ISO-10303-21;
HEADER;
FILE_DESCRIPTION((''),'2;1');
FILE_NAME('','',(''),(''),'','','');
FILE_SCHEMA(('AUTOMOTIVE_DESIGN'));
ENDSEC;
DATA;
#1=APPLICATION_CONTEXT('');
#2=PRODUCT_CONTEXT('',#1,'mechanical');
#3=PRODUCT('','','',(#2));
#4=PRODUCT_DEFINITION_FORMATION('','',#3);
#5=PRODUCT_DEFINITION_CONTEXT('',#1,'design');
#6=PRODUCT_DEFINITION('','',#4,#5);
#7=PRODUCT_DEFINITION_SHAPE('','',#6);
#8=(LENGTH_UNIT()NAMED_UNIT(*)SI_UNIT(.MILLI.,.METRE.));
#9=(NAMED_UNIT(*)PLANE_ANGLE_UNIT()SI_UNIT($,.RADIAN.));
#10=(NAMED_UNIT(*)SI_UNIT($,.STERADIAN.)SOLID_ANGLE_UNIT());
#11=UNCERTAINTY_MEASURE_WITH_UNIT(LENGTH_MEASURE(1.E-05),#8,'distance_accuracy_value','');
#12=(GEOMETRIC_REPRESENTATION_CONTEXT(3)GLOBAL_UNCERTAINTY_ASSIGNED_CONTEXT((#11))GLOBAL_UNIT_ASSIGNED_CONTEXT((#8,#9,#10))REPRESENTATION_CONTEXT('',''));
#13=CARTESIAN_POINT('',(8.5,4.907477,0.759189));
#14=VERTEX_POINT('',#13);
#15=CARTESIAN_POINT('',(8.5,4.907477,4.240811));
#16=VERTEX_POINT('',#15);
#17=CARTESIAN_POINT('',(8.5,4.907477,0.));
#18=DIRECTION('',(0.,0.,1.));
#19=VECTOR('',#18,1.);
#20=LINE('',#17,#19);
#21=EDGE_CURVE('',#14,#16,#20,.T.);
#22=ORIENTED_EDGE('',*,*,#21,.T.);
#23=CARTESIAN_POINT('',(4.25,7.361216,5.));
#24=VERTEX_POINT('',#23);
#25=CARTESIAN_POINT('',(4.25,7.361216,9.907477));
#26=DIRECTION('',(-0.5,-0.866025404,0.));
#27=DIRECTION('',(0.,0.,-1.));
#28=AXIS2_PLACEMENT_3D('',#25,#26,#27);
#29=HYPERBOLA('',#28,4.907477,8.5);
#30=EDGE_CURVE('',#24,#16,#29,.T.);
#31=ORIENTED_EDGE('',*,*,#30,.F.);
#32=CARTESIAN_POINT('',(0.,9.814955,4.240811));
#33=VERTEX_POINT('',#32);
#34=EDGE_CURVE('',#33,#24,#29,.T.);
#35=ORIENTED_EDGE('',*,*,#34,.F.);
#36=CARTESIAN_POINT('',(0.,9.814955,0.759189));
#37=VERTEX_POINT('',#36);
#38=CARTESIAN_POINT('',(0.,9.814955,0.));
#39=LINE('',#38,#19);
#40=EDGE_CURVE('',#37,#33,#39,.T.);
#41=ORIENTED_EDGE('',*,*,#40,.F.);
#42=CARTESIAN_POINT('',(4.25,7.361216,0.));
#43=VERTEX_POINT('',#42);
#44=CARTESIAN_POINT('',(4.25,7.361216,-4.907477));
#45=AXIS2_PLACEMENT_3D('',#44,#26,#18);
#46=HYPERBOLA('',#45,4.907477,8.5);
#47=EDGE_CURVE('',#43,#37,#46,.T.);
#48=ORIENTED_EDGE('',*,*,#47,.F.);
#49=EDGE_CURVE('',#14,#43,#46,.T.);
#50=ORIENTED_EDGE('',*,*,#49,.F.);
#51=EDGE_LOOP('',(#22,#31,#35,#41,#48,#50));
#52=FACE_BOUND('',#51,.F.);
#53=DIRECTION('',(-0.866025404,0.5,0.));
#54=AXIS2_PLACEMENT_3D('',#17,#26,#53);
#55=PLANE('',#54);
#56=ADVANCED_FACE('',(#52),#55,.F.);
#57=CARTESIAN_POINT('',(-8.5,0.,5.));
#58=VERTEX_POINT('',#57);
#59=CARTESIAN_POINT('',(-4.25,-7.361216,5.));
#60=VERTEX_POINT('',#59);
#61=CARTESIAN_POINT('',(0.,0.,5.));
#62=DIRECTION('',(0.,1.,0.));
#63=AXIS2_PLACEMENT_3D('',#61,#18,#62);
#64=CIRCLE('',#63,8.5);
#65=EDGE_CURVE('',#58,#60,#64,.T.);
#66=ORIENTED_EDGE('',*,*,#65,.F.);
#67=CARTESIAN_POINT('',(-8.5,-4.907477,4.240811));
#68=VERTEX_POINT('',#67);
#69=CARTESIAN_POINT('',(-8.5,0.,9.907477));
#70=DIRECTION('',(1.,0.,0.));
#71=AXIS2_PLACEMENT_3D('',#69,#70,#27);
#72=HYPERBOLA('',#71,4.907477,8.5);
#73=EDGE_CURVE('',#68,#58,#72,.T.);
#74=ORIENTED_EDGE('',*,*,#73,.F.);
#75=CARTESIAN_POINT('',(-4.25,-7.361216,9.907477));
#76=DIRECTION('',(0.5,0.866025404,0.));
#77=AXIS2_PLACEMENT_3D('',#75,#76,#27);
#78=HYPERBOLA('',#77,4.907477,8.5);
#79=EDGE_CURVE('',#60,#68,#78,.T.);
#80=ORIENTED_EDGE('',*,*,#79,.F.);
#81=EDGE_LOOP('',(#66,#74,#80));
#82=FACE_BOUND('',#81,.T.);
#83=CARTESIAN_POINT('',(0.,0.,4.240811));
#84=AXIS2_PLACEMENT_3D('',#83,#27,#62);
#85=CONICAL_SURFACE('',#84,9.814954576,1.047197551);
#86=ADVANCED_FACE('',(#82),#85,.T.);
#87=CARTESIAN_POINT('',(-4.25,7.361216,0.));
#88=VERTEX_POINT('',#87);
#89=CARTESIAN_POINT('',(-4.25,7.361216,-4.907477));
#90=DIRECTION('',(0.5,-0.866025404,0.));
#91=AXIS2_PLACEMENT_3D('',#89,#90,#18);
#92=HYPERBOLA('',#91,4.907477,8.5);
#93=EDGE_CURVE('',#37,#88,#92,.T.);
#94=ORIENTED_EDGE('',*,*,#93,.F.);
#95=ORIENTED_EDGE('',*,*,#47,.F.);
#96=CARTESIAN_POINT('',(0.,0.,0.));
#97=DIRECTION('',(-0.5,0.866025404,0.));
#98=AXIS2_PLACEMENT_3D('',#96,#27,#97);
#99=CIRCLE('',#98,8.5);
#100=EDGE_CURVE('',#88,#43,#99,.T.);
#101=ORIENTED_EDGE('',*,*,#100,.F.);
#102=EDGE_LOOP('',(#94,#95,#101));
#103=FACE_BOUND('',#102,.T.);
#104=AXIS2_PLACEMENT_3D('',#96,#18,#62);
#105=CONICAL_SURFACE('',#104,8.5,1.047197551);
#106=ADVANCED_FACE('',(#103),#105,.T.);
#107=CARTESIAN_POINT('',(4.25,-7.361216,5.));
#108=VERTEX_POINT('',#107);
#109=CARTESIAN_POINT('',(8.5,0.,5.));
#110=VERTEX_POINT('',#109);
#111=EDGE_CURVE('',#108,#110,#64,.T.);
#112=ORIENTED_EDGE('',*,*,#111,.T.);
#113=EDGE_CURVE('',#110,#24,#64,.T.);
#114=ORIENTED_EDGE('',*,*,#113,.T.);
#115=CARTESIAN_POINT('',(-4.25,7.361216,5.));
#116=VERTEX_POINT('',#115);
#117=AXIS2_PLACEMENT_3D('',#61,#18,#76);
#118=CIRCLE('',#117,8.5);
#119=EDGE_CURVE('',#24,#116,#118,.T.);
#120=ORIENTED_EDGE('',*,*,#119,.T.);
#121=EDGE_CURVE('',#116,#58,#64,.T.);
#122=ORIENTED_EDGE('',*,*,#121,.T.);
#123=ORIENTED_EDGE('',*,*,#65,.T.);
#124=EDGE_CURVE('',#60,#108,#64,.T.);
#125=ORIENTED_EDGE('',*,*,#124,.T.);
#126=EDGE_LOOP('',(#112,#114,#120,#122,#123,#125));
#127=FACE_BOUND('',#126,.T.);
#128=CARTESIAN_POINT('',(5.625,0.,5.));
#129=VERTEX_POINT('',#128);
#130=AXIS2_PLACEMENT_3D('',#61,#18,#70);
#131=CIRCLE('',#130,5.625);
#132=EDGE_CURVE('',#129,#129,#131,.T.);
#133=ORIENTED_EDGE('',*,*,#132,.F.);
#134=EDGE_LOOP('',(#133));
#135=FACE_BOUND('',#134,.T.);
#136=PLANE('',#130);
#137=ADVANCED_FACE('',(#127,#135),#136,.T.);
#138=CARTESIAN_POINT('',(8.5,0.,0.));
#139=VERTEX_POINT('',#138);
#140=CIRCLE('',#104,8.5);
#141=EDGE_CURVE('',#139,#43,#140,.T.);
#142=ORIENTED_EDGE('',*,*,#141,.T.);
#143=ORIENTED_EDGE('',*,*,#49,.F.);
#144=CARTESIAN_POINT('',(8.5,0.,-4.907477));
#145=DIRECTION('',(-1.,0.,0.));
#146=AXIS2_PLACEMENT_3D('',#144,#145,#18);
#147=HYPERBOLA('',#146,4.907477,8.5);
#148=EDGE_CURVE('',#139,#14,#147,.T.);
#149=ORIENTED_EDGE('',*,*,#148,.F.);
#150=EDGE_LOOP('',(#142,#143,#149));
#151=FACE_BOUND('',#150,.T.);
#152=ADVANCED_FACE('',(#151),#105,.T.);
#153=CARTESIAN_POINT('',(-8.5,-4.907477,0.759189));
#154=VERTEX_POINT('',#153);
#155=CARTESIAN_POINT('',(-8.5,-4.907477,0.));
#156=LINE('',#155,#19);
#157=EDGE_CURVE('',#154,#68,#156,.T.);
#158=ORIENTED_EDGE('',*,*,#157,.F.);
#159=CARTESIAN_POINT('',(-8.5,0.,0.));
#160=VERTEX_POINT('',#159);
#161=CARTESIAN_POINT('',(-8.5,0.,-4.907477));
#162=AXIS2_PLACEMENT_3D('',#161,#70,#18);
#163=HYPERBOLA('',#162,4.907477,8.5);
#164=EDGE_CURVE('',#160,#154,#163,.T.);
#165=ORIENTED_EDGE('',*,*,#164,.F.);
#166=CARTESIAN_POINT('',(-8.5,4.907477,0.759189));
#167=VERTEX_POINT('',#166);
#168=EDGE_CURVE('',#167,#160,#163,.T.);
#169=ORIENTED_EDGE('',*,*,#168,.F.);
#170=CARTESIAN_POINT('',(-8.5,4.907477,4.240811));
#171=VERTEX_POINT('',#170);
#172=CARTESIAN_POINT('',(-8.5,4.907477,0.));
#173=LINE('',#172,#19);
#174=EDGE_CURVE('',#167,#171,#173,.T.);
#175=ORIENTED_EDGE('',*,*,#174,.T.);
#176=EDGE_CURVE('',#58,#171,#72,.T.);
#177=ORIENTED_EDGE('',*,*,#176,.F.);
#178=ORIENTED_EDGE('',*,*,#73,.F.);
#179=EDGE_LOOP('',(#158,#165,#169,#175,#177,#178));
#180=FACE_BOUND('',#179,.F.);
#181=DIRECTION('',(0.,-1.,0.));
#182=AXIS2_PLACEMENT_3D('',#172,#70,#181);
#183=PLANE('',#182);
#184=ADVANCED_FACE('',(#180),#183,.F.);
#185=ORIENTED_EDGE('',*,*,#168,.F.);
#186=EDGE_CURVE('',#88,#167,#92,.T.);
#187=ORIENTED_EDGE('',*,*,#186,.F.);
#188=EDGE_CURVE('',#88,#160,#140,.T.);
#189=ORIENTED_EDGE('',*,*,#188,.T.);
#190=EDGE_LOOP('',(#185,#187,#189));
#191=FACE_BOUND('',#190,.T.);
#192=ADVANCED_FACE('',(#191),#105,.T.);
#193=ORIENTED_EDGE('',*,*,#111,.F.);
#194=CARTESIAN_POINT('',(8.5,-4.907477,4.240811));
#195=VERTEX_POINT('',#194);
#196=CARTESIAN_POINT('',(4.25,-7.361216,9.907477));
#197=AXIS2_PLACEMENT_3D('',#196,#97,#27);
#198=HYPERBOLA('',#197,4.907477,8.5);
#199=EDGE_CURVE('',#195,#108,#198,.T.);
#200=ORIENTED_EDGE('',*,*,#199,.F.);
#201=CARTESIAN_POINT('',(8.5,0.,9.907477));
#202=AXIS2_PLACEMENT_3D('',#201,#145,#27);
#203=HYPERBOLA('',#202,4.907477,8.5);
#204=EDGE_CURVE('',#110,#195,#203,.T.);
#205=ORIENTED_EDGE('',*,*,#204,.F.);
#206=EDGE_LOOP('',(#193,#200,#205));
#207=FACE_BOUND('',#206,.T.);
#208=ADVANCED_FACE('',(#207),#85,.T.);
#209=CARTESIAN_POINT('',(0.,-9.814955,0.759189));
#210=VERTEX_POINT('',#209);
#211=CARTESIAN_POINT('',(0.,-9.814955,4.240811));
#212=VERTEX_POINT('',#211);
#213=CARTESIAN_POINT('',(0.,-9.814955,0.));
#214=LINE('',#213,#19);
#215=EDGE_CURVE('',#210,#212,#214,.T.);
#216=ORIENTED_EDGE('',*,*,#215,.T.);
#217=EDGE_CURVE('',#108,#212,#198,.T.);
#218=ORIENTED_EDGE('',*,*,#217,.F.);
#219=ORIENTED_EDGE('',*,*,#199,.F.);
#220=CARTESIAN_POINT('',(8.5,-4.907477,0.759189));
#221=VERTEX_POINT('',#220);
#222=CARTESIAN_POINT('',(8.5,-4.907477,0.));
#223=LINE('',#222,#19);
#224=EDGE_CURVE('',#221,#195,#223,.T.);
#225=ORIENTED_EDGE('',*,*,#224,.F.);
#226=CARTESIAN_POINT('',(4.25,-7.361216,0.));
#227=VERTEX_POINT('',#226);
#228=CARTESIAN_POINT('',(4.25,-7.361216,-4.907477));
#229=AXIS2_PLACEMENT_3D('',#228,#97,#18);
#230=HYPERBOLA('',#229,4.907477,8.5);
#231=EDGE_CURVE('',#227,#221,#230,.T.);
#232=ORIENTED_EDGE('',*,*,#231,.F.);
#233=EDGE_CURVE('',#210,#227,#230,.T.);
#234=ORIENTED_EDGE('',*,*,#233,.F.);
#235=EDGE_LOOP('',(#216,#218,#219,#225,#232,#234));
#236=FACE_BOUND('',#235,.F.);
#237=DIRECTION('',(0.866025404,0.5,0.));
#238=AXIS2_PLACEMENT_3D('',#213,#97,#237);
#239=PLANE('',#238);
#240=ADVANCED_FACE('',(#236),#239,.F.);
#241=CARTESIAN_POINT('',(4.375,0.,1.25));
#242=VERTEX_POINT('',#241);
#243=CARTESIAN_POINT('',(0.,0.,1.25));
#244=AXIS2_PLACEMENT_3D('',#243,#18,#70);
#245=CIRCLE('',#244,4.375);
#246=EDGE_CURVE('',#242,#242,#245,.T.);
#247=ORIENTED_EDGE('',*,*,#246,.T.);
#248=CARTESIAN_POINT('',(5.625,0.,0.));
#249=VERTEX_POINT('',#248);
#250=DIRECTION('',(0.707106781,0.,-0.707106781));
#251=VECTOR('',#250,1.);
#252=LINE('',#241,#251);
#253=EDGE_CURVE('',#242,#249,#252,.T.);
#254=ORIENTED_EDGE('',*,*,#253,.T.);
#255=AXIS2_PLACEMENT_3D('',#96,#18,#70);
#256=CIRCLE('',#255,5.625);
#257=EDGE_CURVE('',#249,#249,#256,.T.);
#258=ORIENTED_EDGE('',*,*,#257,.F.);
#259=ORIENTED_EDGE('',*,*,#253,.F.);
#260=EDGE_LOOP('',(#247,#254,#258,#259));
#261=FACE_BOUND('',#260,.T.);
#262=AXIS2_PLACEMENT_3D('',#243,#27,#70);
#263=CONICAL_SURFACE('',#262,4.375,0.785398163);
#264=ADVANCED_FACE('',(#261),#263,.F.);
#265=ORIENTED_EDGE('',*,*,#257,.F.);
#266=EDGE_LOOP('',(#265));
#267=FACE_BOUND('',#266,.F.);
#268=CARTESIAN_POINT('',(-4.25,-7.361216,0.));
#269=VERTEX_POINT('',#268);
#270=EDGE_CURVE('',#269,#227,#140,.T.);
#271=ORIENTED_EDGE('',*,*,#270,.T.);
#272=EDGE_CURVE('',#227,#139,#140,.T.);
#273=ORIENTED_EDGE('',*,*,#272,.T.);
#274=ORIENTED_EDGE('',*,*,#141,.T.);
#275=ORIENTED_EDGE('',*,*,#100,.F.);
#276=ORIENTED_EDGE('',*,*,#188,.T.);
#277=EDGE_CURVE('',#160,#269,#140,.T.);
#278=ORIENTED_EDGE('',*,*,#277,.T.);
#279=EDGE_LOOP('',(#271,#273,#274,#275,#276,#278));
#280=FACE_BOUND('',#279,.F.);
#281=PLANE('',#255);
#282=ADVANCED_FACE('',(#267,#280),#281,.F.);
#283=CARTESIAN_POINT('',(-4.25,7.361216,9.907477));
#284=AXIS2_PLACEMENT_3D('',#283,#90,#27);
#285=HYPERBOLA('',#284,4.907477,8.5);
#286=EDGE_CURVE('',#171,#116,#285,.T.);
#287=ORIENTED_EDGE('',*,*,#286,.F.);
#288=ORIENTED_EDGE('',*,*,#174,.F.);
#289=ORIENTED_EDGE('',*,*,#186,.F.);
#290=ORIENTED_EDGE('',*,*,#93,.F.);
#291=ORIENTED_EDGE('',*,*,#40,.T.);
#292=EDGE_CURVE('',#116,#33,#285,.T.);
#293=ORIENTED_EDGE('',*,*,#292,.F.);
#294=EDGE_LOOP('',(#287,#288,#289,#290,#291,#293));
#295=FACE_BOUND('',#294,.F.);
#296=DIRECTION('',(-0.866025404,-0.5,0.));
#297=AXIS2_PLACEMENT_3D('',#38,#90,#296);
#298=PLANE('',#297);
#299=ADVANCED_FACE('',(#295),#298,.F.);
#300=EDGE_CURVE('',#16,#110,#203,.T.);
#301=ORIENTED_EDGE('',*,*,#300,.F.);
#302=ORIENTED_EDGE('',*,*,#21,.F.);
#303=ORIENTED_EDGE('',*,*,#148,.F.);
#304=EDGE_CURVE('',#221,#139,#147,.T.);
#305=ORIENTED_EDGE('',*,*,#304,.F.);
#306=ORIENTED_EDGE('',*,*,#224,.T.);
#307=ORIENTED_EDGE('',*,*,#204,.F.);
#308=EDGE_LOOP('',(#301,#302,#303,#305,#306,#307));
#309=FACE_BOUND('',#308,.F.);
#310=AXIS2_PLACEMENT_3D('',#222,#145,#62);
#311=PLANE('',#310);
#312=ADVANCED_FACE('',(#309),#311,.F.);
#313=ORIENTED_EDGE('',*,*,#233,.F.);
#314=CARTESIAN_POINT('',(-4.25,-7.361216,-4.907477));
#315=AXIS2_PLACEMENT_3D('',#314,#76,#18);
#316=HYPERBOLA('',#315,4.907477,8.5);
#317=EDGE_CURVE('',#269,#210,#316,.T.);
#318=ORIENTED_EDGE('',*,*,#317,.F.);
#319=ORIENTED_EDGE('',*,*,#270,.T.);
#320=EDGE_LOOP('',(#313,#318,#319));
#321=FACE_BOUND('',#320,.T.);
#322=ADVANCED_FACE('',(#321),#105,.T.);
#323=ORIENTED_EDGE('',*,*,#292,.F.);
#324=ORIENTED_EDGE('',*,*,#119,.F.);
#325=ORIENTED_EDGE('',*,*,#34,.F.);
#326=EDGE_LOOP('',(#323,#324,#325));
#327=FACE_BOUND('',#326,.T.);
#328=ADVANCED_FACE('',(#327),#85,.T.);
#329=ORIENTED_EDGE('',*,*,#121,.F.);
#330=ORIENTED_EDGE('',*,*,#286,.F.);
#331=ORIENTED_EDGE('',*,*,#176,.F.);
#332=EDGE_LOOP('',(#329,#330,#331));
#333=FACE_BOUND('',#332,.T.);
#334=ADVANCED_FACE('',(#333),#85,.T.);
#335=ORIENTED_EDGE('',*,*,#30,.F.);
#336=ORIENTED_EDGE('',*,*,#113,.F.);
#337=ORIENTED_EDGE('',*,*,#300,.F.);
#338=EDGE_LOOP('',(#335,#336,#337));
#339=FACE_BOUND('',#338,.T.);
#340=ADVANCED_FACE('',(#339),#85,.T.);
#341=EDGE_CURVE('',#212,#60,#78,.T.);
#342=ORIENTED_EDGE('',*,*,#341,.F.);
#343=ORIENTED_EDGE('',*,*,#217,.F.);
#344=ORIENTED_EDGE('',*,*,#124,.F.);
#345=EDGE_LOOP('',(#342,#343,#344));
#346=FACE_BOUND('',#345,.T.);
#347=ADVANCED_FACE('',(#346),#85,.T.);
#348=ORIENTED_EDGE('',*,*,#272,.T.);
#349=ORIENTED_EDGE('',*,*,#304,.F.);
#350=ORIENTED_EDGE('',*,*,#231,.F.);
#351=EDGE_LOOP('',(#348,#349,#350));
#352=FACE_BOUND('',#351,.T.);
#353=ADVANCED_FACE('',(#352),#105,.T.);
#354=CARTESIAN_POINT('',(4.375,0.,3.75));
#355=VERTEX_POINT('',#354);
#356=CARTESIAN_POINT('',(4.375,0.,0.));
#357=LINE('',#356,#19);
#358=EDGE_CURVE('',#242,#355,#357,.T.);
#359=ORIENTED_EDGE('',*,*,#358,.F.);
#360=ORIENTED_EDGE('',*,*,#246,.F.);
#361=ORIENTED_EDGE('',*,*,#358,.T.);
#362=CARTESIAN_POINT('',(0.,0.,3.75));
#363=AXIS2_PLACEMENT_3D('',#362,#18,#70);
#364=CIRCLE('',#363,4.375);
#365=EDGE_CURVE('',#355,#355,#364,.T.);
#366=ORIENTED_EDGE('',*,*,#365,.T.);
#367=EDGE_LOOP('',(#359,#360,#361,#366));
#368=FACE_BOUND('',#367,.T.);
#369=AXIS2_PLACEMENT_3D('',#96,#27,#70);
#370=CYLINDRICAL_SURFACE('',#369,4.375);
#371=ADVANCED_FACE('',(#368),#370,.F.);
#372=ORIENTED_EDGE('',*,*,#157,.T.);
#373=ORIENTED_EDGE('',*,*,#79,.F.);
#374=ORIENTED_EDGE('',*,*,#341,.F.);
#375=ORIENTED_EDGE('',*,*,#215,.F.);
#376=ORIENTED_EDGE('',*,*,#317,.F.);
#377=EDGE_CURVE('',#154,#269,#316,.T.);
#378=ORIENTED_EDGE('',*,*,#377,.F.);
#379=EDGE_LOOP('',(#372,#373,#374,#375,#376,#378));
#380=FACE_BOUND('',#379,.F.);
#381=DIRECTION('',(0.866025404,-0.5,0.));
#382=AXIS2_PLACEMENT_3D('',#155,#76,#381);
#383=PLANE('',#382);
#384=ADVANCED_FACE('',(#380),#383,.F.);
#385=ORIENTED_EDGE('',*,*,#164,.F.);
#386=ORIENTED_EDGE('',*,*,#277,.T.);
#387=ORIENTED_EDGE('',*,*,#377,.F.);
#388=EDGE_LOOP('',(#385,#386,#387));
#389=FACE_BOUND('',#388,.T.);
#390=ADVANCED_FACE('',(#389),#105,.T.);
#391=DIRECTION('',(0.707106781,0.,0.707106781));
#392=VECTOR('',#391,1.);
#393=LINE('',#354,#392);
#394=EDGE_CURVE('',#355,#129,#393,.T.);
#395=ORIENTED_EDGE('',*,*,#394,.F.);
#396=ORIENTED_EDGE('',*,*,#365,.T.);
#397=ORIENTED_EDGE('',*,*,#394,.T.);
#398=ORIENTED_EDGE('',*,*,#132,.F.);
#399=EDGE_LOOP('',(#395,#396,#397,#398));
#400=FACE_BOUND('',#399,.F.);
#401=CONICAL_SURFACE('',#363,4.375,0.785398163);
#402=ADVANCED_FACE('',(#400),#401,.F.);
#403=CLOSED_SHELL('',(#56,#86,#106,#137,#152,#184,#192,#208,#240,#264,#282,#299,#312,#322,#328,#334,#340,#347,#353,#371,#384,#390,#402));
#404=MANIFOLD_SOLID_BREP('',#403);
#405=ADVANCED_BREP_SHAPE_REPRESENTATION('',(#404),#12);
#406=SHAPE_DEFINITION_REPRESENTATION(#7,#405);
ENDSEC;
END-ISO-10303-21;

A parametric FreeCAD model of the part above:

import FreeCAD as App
import Part
import Sketcher
Q = App.Units.Quantity


def edges_at(feature, points):
    """Names of the edges that pass closest to the given points."""
    edges = feature.Shape.Edges
    near = lambda p: min(range(len(edges)), key=lambda i: edges[i].distToShape(Part.Vertex(*p))[0])
    return sorted({f"Edge{near(p) + 1}" for p in points})


def add_polygon(sketch, points):
    """Adds a closed chain of lines whose ends are joined by coincident constraints."""
    first, n = sketch.GeometryCount, len(points)
    for a, b in zip(points, points[1:] + points[:1]):
        sketch.addGeometry(Part.LineSegment(App.Vector(*a, 0), App.Vector(*b, 0)), False)
    for i in range(n):
        sketch.addConstraint(Sketcher.Constraint("Coincident", first + i, 2, first + (i + 1) % n, 1))

doc = App.newDocument("Part")
body = doc.addObject("PartDesign::Body", "Body")

# Sketch on XY plane
sketch1 = body.newObject("Sketcher::SketchObject", "Sketch")
sketch1.AttachmentSupport = (doc.getObject("XY_Plane"), [""])
sketch1.MapMode = "FlatFace"
add_polygon(sketch1, [(8.5, -4.9), (8.5, 4.9), (0, 9.8), (-8.5, 4.9), (-8.5, -4.9), (0, -9.8)])  # lines 0-5
sketch1.addGeometry(Part.Circle(App.Vector(0, 0, 0), App.Vector(0, 0, 1), 4.4), False)  # 6
sketch1.addConstraint([
    Sketcher.Constraint("Vertical", 0),
    Sketcher.Constraint("Vertical", 3),
    Sketcher.Constraint("Coincident", 6, 3, -1, 1),
    Sketcher.Constraint("Symmetric", 0, 2, 3, 2, -1, 1),
    Sketcher.Constraint("Symmetric", 1, 2, 4, 2, -1, 1),
    Sketcher.Constraint("PointOnObject", 1, 2, -2),
    Sketcher.Constraint("Parallel", 2, 5),
    Sketcher.Constraint("Horizontal", 0, 2, 2, 2),
    Sketcher.Constraint("Diameter", 6, Q("8.75 mm")),
    Sketcher.Constraint("Angle", 1, Q("150 deg")),
    Sketcher.Constraint("DistanceX", 2, 2, 0, 2, Q("17 mm")),
    Sketcher.Constraint("DistanceY", 0, 1, 0, 2, Q("9.814955 mm")),
])
pad1 = body.newObject("PartDesign::Pad", "Pad")
pad1.Profile = sketch1
pad1.Length = 5
doc.recompute()

chamfer = body.newObject("PartDesign::Chamfer", "Chamfer")
chamfer.Base = (pad1, edges_at(pad1, [(-4.375, 0, 0), (-4.375, 0, 5)]))
chamfer.Size = 1.25

# Sketch on YZ plane
sketch2 = body.newObject("Sketcher::SketchObject", "Sketch001")
sketch2.AttachmentSupport = (doc.getObject("YZ_Plane"), [""])
sketch2.MapMode = "FlatFace"
add_polygon(sketch2, [(9.8, 0), (9.8, 0.8), (8.5, 0)])  # lines 0-2
add_polygon(sketch2, [(8.5, 5), (9.8, 4.2), (9.8, 5)])  # lines 3-5
sketch2.addConstraint([
    Sketcher.Constraint("Vertical", 0),
    Sketcher.Constraint("Horizontal", 2),
    Sketcher.Constraint("Vertical", 4),
    Sketcher.Constraint("Horizontal", 5),
    Sketcher.Constraint("PointOnObject", 1, 2, -1),
    Sketcher.Constraint("Vertical", 2, 2, 3, 2),
    Sketcher.Constraint("Vertical", 1, 2, 5, 2),
    Sketcher.Constraint("Equal", 0, 4),
    Sketcher.Constraint("Angle", 1, Q("-150 deg")),
    Sketcher.Constraint("DistanceY", -1, 1, 4, 2, Q("5 mm")),
    Sketcher.Constraint("DistanceX", -1, 1, 1, 2, Q("8.5 mm")),
    Sketcher.Constraint("DistanceY", 0, 1, 0, 2, Q("0.759189 mm")),
])
groove = body.newObject("PartDesign::Groove", "Groove")
groove.Profile = sketch2
groove.ReferenceAxis = (sketch2, ["V_Axis"])
groove.Angle = 360

doc.recompute()
